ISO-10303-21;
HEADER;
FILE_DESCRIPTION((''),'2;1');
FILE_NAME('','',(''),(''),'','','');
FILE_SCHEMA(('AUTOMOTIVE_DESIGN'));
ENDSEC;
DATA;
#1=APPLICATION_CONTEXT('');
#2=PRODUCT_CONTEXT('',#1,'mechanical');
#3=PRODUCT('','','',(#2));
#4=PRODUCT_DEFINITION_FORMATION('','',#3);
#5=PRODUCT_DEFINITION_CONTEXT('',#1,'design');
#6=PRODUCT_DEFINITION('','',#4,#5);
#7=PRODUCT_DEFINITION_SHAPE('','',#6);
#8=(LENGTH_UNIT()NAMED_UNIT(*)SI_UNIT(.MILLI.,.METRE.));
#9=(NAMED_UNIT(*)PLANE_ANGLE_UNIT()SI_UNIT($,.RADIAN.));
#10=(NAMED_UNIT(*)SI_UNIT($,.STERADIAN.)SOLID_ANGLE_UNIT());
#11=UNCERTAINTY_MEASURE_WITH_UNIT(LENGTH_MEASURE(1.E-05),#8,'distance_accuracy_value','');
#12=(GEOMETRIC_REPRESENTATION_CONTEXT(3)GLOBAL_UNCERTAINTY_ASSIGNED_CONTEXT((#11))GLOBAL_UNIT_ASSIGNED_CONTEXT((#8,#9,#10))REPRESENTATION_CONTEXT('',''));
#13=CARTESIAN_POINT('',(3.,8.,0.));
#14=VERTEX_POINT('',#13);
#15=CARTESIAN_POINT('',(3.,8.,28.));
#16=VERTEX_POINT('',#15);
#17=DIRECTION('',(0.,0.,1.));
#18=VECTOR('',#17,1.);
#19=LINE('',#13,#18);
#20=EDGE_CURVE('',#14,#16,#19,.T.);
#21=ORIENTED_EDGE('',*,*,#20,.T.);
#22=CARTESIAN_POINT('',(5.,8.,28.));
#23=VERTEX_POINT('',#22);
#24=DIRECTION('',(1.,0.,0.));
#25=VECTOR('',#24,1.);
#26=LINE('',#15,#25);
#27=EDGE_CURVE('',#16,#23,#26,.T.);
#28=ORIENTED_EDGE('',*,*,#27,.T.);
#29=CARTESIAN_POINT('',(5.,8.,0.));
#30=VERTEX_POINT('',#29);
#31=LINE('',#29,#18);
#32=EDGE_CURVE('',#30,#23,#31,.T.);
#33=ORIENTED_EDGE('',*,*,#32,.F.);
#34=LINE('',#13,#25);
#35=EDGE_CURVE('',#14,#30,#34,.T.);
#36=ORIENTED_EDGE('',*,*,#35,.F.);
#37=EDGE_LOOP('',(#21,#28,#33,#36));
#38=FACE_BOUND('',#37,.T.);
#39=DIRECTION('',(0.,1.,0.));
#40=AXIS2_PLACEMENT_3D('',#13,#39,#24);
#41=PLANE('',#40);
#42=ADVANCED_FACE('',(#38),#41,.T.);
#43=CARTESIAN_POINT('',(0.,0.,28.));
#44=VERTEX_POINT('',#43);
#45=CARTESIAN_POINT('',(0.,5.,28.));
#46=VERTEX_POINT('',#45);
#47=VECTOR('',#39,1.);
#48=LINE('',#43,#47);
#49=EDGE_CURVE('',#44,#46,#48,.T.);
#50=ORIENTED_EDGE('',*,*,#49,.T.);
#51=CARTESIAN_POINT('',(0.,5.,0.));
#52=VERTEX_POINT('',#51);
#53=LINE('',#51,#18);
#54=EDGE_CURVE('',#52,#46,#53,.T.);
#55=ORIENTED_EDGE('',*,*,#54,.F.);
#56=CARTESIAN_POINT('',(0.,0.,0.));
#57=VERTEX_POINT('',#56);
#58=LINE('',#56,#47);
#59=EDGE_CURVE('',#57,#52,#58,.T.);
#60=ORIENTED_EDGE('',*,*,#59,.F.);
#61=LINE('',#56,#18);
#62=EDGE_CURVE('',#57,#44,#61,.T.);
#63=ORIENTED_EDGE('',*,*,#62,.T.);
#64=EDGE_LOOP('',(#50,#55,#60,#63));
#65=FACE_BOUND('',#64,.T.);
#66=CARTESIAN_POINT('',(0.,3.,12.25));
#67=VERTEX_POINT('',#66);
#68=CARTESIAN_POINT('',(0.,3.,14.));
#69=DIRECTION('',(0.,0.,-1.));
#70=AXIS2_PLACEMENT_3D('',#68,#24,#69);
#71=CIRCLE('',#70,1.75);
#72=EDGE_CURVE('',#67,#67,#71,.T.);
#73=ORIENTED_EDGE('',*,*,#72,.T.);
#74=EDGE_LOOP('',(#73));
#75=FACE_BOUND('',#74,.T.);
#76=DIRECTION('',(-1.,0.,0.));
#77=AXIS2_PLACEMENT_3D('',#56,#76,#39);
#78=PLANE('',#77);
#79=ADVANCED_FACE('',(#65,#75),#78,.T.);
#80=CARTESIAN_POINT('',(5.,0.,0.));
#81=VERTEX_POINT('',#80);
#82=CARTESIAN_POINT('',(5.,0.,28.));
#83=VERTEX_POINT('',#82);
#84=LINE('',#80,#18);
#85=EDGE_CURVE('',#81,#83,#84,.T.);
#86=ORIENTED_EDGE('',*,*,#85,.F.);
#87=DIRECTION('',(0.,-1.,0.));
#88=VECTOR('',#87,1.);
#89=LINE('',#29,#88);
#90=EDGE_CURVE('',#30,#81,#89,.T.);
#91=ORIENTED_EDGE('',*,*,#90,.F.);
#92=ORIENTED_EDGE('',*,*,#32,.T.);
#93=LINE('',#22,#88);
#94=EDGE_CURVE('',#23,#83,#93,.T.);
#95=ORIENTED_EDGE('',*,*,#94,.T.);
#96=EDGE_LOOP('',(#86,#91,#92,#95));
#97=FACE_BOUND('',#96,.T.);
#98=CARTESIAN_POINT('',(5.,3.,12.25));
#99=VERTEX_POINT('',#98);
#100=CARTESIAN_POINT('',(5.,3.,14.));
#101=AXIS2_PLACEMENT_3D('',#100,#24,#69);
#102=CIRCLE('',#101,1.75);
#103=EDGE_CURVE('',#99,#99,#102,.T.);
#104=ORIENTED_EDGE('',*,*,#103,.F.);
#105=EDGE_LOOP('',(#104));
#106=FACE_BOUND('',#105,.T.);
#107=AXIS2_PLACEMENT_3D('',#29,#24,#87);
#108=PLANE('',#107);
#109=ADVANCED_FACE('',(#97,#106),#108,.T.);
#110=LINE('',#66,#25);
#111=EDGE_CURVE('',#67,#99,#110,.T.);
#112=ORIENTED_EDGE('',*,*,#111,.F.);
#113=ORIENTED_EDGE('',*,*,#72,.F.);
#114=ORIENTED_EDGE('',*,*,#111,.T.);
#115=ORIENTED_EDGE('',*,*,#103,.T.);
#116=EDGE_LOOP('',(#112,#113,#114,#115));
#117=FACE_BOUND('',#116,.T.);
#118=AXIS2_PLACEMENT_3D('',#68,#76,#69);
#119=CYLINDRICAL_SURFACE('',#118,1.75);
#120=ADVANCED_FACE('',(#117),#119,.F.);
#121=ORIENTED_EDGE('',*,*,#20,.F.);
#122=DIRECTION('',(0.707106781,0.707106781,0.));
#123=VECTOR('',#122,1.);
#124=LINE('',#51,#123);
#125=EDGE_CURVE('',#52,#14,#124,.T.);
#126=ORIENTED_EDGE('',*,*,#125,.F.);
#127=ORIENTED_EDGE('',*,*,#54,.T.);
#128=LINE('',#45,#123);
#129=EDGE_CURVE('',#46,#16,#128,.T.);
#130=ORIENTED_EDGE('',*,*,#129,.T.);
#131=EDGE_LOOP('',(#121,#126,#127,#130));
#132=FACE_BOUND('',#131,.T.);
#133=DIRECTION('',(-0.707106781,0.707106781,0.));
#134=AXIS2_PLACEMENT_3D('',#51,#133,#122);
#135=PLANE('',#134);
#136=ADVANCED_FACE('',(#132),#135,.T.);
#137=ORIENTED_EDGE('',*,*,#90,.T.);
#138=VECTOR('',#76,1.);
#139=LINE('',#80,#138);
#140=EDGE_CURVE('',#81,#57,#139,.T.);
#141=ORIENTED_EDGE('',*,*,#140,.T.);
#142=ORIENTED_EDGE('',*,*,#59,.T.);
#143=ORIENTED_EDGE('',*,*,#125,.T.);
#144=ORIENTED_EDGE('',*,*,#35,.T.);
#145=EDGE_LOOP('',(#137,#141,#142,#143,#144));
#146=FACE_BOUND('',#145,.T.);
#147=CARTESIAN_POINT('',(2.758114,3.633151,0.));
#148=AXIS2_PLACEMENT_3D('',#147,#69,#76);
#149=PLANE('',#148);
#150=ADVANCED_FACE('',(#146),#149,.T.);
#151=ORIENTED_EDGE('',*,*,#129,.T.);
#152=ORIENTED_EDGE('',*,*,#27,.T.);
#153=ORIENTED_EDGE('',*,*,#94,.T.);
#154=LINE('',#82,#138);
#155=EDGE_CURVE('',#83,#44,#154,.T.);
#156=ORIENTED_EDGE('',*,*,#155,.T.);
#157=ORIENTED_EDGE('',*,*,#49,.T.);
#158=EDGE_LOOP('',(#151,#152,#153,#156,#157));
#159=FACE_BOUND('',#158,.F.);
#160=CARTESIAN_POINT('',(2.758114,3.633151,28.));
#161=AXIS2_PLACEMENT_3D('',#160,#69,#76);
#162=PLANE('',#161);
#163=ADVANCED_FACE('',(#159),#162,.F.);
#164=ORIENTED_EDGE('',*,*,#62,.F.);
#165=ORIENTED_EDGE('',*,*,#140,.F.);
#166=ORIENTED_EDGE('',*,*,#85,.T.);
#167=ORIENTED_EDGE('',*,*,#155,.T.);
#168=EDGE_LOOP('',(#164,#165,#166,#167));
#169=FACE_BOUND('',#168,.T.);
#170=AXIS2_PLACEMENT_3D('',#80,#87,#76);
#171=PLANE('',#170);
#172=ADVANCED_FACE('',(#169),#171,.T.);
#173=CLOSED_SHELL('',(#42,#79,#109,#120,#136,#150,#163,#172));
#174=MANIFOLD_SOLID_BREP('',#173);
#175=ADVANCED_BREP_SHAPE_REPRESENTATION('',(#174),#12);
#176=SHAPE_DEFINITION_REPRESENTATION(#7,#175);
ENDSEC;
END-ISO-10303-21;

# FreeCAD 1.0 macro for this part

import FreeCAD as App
import Part
import Sketcher
from FreeCAD import Vector
Q = App.Units.Quantity


def add_polygon(sketch, points):
    """Adds a closed chain of lines whose ends are joined by coincident constraints."""
    first, n = sketch.GeometryCount, len(points)
    for a, b in zip(points, points[1:] + points[:1]):
        sketch.addGeometry(Part.LineSegment(App.Vector(*a, 0), App.Vector(*b, 0)), False)
    for i in range(n):
        sketch.addConstraint(Sketcher.Constraint("Coincident", first + i, 2, first + (i + 1) % n, 1))

doc = App.newDocument("Part")
body = doc.addObject("PartDesign::Body", "Body")

sketch1 = doc.addObject("Sketcher::SketchObject", "Sketch")
body.addObject(sketch1)
sketch1.AttachmentSupport = (doc.YZ_Plane, [""])
sketch1.MapMode = "FlatFace"
sketch1.addGeometry(Part.Circle(Vector(3, 14, 0), Vector(0, 0, 1), 1.75), False)
sketch1.addConstraint([
    Sketcher.Constraint("Diameter", 0, Q("3.5 mm")),
    Sketcher.Constraint("DistanceX", -1, 1, 0, 3, Q("3 mm")),
    Sketcher.Constraint("DistanceY", -1, 1, 0, 3, Q("14 mm")),
])
pad1 = doc.addObject("PartDesign::Pad", "Pad")
body.addObject(pad1)
pad1.Profile = sketch1
pad1.Length = 5
body2 = doc.addObject("PartDesign::Body", "Body001")

sketch2 = doc.addObject("Sketcher::SketchObject", "Sketch001")
body2.addObject(sketch2)
sketch2.AttachmentSupport = (doc.getObject("XY_Plane001"), [""])
sketch2.MapMode = "FlatFace"
add_polygon(sketch2, [(0, 5), (0, 0), (5, 0), (5, 8), (3, 8)])
sketch2.addConstraint([
    Sketcher.Constraint("Vertical", 0),
    Sketcher.Constraint("Horizontal", 1),
    Sketcher.Constraint("Vertical", 2),
    Sketcher.Constraint("Horizontal", 3),
    Sketcher.Constraint("Coincident", 0, 2, -1, 1),
    Sketcher.Constraint("Equal", 1, 0),
    Sketcher.Constraint("DistanceX", 1, 1, 1, 2, Q("5 mm")),
    Sketcher.Constraint("DistanceX", 3, 2, 3, 1, Q("2 mm")),
    Sketcher.Constraint("DistanceY", 2, 1, 2, 2, Q("8 mm")),
])
pad2 = doc.addObject("PartDesign::Pad", "Pad001")
body2.addObject(pad2)
pad2.Profile = sketch2
pad2.Length = 28
doc.recompute()

boolean = doc.addObject("PartDesign::Boolean", "Boolean")
body2.addObject(boolean)
boolean.Type = "Cut"
boolean.addObjects([body])

doc.recompute()
